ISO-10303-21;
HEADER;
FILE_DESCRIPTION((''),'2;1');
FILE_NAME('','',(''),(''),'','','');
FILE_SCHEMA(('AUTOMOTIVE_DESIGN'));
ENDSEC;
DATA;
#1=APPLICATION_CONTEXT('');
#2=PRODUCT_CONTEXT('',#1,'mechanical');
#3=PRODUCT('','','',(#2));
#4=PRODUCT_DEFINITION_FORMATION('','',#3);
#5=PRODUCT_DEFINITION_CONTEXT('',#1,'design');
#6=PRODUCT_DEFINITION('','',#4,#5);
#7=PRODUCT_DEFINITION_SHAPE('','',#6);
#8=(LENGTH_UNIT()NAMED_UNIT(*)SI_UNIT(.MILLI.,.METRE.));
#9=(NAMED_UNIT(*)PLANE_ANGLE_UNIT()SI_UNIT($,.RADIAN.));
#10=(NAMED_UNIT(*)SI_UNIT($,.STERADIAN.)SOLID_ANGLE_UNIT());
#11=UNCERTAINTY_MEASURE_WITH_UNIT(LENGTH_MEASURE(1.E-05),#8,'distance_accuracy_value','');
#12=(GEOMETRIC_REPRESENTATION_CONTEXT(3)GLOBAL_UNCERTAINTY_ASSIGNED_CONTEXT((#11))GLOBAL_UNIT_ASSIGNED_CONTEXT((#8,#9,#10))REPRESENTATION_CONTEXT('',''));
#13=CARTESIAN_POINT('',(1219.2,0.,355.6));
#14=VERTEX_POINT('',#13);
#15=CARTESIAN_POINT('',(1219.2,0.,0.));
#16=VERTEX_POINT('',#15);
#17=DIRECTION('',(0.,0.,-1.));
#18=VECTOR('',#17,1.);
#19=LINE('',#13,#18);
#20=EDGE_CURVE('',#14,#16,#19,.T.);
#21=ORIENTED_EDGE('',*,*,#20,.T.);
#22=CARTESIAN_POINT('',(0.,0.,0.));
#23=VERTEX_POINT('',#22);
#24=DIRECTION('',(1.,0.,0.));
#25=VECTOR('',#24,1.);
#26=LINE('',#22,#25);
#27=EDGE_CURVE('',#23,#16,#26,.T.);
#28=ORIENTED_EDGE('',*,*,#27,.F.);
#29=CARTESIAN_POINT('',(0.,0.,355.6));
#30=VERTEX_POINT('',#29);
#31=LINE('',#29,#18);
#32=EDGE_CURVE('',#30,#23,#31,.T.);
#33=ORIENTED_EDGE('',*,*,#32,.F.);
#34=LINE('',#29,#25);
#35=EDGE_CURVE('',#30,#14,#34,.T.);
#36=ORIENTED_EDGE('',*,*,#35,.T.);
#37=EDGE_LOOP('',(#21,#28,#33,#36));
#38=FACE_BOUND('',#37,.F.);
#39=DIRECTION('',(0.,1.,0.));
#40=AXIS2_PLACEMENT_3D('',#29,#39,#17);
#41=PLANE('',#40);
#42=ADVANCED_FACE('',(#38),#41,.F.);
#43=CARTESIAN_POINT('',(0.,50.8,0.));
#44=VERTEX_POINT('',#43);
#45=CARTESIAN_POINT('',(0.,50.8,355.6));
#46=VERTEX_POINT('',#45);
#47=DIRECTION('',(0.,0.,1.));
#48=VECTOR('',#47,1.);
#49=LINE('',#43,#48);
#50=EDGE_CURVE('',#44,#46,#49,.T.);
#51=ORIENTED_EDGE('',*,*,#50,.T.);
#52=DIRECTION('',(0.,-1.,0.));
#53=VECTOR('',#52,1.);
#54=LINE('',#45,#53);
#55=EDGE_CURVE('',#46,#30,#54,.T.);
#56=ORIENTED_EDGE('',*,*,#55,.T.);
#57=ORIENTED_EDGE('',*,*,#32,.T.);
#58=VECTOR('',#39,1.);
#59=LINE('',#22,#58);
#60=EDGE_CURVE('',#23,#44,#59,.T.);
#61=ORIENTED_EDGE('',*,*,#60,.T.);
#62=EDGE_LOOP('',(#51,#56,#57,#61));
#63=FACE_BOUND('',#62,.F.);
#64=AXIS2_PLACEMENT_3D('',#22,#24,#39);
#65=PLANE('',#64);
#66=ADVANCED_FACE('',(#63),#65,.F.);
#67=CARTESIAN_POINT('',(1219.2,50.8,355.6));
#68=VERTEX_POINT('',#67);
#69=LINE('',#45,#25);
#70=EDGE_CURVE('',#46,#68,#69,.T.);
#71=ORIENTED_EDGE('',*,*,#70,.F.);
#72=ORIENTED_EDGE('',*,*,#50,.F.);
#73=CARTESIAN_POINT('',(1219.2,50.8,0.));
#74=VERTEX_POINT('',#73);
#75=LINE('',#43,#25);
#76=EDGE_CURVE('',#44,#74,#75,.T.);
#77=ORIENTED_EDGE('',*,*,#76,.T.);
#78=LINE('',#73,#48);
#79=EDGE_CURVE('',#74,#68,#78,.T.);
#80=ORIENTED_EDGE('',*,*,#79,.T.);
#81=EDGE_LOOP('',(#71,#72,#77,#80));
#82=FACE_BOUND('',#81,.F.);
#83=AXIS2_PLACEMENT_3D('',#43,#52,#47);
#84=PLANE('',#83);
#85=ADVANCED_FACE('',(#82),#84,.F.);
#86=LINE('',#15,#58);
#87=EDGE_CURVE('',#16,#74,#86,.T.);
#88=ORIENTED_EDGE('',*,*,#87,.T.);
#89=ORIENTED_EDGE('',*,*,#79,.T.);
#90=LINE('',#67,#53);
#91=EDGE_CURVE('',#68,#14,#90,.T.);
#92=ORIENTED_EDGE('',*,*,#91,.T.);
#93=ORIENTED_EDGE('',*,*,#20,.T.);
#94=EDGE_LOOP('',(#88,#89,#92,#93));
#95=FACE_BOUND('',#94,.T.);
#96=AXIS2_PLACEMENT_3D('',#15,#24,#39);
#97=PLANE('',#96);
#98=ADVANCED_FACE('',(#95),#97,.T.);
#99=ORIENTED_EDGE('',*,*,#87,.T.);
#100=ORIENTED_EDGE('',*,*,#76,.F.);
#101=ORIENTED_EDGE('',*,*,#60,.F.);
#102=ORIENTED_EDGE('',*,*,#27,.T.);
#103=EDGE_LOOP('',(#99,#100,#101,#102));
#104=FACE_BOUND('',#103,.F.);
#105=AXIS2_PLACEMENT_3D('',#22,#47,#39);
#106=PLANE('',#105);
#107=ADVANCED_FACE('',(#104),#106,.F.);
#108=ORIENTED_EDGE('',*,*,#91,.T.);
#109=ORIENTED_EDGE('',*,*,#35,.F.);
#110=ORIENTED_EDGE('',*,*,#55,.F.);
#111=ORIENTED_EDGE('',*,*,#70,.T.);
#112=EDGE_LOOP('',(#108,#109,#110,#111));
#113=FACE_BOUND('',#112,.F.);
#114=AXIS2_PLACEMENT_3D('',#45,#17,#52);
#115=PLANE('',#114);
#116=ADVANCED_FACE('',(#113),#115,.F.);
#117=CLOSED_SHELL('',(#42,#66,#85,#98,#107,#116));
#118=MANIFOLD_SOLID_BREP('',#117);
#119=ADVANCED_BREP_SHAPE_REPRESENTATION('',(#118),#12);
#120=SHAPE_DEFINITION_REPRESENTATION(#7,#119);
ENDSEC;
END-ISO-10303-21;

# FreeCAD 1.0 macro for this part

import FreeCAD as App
import Part
import Sketcher

V = App.Vector
Q = App.Units.Quantity

doc = App.newDocument("Part")
body = doc.addObject("PartDesign::Body", "Body")

# Sketch on YZ plane
sketch1 = doc.addObject("Sketcher::SketchObject", "Sketch")
body.addObject(sketch1)
sketch1.AttachmentSupport = (doc.YZ_Plane, [""])
sketch1.MapMode = "FlatFace"
sketch1.addGeometry([
    Part.LineSegment(V(0, 355.6, 0), V(0, 0, 0)),
    Part.LineSegment(V(0, 0, 0), V(50.8, 0, 0)),
    Part.LineSegment(V(50.8, 0, 0), V(50.8, 355.6, 0)),
    Part.LineSegment(V(50.8, 355.6, 0), V(0, 355.6, 0)),
], False)
sketch1.addConstraint([
    Sketcher.Constraint("Coincident", 0, 2, 1, 1),
    Sketcher.Constraint("Coincident", 1, 2, 2, 1),
    Sketcher.Constraint("Coincident", 2, 2, 3, 1),
    Sketcher.Constraint("Coincident", 3, 2, 0, 1),
    Sketcher.Constraint("Vertical", 0),
    Sketcher.Constraint("Horizontal", 1),
    Sketcher.Constraint("Vertical", 2),
    Sketcher.Constraint("Horizontal", 3),
    Sketcher.Constraint("Coincident", 0, 2, -1, 1),
    Sketcher.Constraint("DistanceX", 1, 1, 1, 2, Q("2 in")),
    Sketcher.Constraint("DistanceY", 0, 2, 0, 1, Q("14 in")),
])
pad1 = doc.addObject("PartDesign::Pad", "Pad")
body.addObject(pad1)
pad1.Profile = sketch1
pad1.Length = Q("48 in")

doc.recompute()
